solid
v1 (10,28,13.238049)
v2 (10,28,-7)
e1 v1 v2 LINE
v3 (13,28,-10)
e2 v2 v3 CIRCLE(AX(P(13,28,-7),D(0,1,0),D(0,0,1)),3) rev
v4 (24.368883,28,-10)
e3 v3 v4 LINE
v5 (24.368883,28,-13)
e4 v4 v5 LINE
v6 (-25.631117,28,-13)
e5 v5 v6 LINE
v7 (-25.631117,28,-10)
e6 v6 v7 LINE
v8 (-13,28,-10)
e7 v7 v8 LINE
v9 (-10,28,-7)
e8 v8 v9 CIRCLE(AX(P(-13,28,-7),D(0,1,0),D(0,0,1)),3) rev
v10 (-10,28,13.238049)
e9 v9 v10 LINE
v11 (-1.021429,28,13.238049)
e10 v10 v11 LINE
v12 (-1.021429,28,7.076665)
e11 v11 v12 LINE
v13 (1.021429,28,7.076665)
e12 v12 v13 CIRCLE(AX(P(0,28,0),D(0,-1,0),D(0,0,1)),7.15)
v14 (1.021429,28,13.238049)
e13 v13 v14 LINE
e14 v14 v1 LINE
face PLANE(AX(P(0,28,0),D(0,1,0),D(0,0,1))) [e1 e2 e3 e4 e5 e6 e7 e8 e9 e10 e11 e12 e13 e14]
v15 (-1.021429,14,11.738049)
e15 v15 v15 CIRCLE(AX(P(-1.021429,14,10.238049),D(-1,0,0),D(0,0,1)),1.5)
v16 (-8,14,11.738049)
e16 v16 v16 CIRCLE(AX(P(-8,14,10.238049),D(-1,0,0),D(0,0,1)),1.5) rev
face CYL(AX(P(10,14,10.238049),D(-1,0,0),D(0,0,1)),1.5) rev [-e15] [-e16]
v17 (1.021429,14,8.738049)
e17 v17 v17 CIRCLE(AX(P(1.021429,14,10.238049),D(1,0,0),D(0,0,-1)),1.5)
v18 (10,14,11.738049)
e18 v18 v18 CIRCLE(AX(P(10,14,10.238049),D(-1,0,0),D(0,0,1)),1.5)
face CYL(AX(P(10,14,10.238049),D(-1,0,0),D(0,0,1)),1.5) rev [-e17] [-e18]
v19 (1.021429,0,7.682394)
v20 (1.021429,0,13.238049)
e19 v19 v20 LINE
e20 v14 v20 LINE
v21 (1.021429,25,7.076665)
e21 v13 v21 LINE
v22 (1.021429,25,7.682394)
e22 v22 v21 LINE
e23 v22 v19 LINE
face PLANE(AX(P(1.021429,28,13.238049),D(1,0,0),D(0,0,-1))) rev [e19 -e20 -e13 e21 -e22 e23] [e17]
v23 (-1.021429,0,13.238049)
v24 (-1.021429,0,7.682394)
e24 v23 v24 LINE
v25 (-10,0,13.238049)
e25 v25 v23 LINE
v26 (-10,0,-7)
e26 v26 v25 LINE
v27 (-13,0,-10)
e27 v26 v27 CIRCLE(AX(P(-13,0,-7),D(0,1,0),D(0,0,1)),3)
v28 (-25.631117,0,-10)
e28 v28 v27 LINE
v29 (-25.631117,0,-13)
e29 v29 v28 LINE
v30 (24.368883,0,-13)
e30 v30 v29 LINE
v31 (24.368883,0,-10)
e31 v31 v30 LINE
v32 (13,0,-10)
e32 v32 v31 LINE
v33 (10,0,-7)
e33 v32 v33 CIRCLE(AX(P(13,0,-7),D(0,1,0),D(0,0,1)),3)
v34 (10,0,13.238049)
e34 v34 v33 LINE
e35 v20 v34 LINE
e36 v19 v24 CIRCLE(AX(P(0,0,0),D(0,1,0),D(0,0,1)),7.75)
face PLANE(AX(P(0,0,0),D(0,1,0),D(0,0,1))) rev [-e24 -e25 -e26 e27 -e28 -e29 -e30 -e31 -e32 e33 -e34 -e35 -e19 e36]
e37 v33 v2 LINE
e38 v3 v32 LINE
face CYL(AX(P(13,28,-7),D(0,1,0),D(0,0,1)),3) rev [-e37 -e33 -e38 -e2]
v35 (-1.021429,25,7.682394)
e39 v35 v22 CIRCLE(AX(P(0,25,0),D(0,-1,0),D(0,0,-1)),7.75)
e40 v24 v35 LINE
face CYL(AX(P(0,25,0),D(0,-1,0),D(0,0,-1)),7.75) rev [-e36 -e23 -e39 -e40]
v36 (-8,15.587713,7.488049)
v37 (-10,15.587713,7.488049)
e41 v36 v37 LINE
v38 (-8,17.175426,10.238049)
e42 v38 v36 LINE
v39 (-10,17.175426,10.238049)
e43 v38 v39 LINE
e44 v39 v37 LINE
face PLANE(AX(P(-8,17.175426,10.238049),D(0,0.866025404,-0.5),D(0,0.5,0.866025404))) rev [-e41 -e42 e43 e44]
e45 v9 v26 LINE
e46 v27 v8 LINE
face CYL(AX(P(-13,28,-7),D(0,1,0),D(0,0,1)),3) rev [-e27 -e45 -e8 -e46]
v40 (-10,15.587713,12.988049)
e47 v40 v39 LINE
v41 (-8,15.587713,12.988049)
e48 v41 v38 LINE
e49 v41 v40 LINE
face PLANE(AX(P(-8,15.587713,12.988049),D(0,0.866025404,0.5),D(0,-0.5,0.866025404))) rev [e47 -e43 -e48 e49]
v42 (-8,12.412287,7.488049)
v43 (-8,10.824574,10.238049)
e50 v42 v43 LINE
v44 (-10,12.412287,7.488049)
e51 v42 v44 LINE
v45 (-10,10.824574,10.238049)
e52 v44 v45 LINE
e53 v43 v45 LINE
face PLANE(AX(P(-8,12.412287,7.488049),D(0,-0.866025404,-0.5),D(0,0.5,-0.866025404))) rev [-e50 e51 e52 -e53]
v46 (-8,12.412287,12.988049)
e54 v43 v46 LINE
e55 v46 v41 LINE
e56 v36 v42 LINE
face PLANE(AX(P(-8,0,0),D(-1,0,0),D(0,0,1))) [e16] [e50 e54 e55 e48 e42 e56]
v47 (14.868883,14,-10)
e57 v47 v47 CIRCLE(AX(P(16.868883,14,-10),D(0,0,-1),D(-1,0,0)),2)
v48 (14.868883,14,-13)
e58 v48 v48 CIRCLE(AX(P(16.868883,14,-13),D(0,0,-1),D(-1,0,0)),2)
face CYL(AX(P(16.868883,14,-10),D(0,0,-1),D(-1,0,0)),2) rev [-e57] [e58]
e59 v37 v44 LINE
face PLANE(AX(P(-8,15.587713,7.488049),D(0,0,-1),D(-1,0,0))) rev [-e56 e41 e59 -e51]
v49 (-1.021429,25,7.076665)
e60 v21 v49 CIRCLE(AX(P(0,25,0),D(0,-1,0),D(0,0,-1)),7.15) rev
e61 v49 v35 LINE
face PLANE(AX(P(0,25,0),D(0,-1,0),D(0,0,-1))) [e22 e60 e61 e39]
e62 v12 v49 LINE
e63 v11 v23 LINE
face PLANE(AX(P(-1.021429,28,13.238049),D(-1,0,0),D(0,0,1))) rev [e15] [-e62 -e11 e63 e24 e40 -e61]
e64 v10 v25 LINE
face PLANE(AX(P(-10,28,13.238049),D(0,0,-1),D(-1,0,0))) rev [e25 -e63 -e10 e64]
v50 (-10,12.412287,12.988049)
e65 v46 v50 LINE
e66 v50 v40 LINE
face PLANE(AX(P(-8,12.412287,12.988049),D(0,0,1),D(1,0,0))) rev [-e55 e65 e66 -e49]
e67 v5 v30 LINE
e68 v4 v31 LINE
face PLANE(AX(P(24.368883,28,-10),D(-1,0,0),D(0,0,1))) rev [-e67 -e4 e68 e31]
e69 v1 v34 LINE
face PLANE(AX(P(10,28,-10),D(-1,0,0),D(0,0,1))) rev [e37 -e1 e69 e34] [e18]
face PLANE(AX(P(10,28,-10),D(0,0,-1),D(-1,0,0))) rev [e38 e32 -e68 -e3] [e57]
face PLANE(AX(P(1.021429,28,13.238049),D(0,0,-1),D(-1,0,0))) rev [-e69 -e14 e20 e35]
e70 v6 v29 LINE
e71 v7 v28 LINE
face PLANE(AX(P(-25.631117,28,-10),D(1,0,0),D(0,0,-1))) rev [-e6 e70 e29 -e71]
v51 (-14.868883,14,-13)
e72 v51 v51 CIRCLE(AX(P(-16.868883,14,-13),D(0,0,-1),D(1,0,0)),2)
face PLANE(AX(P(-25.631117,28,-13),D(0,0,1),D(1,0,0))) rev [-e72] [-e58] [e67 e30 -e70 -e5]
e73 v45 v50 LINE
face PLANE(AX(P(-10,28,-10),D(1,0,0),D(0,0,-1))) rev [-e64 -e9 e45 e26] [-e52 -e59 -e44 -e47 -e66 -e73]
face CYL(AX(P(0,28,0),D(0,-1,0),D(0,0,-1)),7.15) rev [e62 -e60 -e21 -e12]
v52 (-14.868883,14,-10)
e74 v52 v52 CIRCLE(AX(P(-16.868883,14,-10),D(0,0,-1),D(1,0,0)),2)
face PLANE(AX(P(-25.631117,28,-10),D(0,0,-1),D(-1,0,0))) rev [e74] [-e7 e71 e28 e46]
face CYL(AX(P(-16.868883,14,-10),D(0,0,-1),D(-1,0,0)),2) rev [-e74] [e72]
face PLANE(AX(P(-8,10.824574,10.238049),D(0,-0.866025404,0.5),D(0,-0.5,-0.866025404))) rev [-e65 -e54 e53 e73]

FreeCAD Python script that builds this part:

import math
import FreeCAD as App
import Part
import Sketcher
Q = App.Units.Quantity


def edges_at(feature, points):
    """Names of the edges that pass closest to the given points."""
    edges = feature.Shape.Edges
    near = lambda p: min(range(len(edges)), key=lambda i: edges[i].distToShape(Part.Vertex(*p))[0])
    return sorted({f"Edge{near(p) + 1}" for p in points})

doc = App.newDocument("Part")
body = doc.addObject("PartDesign::Body", "Body")

# Sketch on XZ plane
sketch1 = body.newObject("Sketcher::SketchObject", "Sketch")
sketch1.AttachmentSupport = (doc.getObject("XZ_Plane"), [""])
sketch1.MapMode = "FlatFace"
sketch1.addGeometry(Part.LineSegment(App.Vector(-25.6, -10, 0), App.Vector(-10, -10, 0)), False)
sketch1.addGeometry(Part.LineSegment(App.Vector(-10, -10, 0), App.Vector(-10, 13.2, 0)), False)
sketch1.addGeometry(Part.LineSegment(App.Vector(-10, 13.2, 0), App.Vector(-1, 13.2, 0)), False)
sketch1.addGeometry(Part.LineSegment(App.Vector(-1, 13.2, 0), App.Vector(-1, 7.1, 0)), False)
sketch1.addGeometry(Part.ArcOfCircle(Part.Circle(App.Vector(0, 0, 0), App.Vector(0, 0, 1), 7.2), math.radians(98), math.radians(442)), False)
sketch1.addGeometry(Part.LineSegment(App.Vector(1, 7.1, 0), App.Vector(1, 13.2, 0)), False)
sketch1.addGeometry(Part.LineSegment(App.Vector(1, 13.2, 0), App.Vector(10, 13.2, 0)), False)
sketch1.addGeometry(Part.LineSegment(App.Vector(10, 13.2, 0), App.Vector(10, -10, 0)), False)
sketch1.addGeometry(Part.LineSegment(App.Vector(10, -10, 0), App.Vector(24.4, -10, 0)), False)
sketch1.addGeometry(Part.LineSegment(App.Vector(24.4, -10, 0), App.Vector(24.4, -13, 0)), False)
sketch1.addGeometry(Part.LineSegment(App.Vector(24.4, -13, 0), App.Vector(-25.6, -13, 0)), False)
sketch1.addGeometry(Part.LineSegment(App.Vector(-25.6, -13, 0), App.Vector(-25.6, -10, 0)), False)
sketch1.addConstraint(Sketcher.Constraint("Coincident", 0, 2, 1, 1))
sketch1.addConstraint(Sketcher.Constraint("Coincident", 1, 2, 2, 1))
sketch1.addConstraint(Sketcher.Constraint("Coincident", 2, 2, 3, 1))
sketch1.addConstraint(Sketcher.Constraint("Coincident", 3, 2, 4, 1))
sketch1.addConstraint(Sketcher.Constraint("Coincident", 4, 2, 5, 1))
sketch1.addConstraint(Sketcher.Constraint("Coincident", 5, 2, 6, 1))
sketch1.addConstraint(Sketcher.Constraint("Coincident", 6, 2, 7, 1))
sketch1.addConstraint(Sketcher.Constraint("Coincident", 7, 2, 8, 1))
sketch1.addConstraint(Sketcher.Constraint("Coincident", 8, 2, 9, 1))
sketch1.addConstraint(Sketcher.Constraint("Coincident", 9, 2, 10, 1))
sketch1.addConstraint(Sketcher.Constraint("Coincident", 10, 2, 11, 1))
sketch1.addConstraint(Sketcher.Constraint("Coincident", 11, 2, 0, 1))
sketch1.addConstraint(Sketcher.Constraint("Horizontal", 0))
sketch1.addConstraint(Sketcher.Constraint("Vertical", 1))
sketch1.addConstraint(Sketcher.Constraint("Horizontal", 2))
sketch1.addConstraint(Sketcher.Constraint("Vertical", 3))
sketch1.addConstraint(Sketcher.Constraint("Vertical", 5))
sketch1.addConstraint(Sketcher.Constraint("Horizontal", 6))
sketch1.addConstraint(Sketcher.Constraint("Vertical", 7))
sketch1.addConstraint(Sketcher.Constraint("Horizontal", 8))
sketch1.addConstraint(Sketcher.Constraint("Vertical", 9))
sketch1.addConstraint(Sketcher.Constraint("Horizontal", 10))
sketch1.addConstraint(Sketcher.Constraint("Vertical", 11))
sketch1.addConstraint(Sketcher.Constraint("Coincident", 4, 3, -1, 1))
sketch1.addConstraint(Sketcher.Constraint("Symmetric", 2, 2, 5, 2, -2))
sketch1.addConstraint(Sketcher.Constraint("Symmetric", 0, 2, 7, 2, -2))
sketch1.addConstraint(Sketcher.Constraint("DistanceX", 10, 2, 10, 1, Q("50 mm")))
sketch1.addConstraint(Sketcher.Constraint("DistanceY", 9, 2, 9, 1, Q("3 mm")))
sketch1.addConstraint(Sketcher.Constraint("Radius", 4, Q("7.15 mm")))
sketch1.addConstraint(Sketcher.Constraint("DistanceX", 0, 2, -1, 1, Q("10 mm")))
sketch1.addConstraint(Sketcher.Constraint("DistanceY", 0, 2, -1, 1, Q("10 mm")))
sketch1.addConstraint(Sketcher.Constraint("DistanceX", 2, 1, 2, 2, Q("8.978571 mm")))
sketch1.addConstraint(Sketcher.Constraint("DistanceY", 1, 1, 1, 2, Q("23.238049 mm")))
sketch1.addConstraint(Sketcher.Constraint("DistanceX", 0, 1, 0, 2, Q("15.631117 mm")))
pad1 = body.newObject("PartDesign::Pad", "Pad")
pad1.Profile = sketch1
pad1.Length = 28
pad1.Reversed = True

# Sketch on YZ plane
sketch2 = body.newObject("Sketcher::SketchObject", "Sketch001")
sketch2.AttachmentSupport = (doc.getObject("YZ_Plane"), [""])
sketch2.MapMode = "FlatFace"
sketch2.AttachmentOffset = App.Placement(App.Vector(0, 0, -10), App.Rotation())
sketch2.addGeometry(Part.Circle(App.Vector(14, 10.2, 0), App.Vector(0, 0, 1), 1.5), False)
sketch2.addConstraint(Sketcher.Constraint("Diameter", 0, Q("3 mm")))
sketch2.addConstraint(Sketcher.Constraint("DistanceX", -1, 1, 0, 3, Q("14 mm")))
sketch2.addConstraint(Sketcher.Constraint("DistanceY", -1, 1, 0, 3, Q("10.238049 mm")))
pocket1 = body.newObject("PartDesign::Pocket", "Pocket")
pocket1.Profile = sketch2
pocket1.Length = 20
pocket1.Reversed = True

# Sketch on YZ plane
sketch3 = body.newObject("Sketcher::SketchObject", "Sketch002")
sketch3.AttachmentSupport = (doc.getObject("YZ_Plane"), [""])
sketch3.MapMode = "FlatFace"
sketch3.AttachmentOffset = App.Placement(App.Vector(0, 0, -10), App.Rotation())
sketch3.addGeometry(Part.LineSegment(App.Vector(17.2, 10.2, 0), App.Vector(15.6, 7.5, 0)), False)
sketch3.addGeometry(Part.LineSegment(App.Vector(15.6, 7.5, 0), App.Vector(12.4, 7.5, 0)), False)
sketch3.addGeometry(Part.LineSegment(App.Vector(12.4, 7.5, 0), App.Vector(10.8, 10.2, 0)), False)
sketch3.addGeometry(Part.LineSegment(App.Vector(10.8, 10.2, 0), App.Vector(12.4, 13, 0)), False)
sketch3.addGeometry(Part.LineSegment(App.Vector(12.4, 13, 0), App.Vector(15.6, 13, 0)), False)
sketch3.addGeometry(Part.LineSegment(App.Vector(15.6, 13, 0), App.Vector(17.2, 10.2, 0)), False)
sketch3.addConstraint(Sketcher.Constraint("Coincident", 0, 2, 1, 1))
sketch3.addConstraint(Sketcher.Constraint("Coincident", 1, 2, 2, 1))
sketch3.addConstraint(Sketcher.Constraint("Coincident", 2, 2, 3, 1))
sketch3.addConstraint(Sketcher.Constraint("Coincident", 3, 2, 4, 1))
sketch3.addConstraint(Sketcher.Constraint("Coincident", 4, 2, 5, 1))
sketch3.addConstraint(Sketcher.Constraint("Coincident", 5, 2, 0, 1))
sketch3.addConstraint(Sketcher.Constraint("Horizontal", 1))
sketch3.addConstraint(Sketcher.Constraint("Horizontal", 4))
sketch3.addConstraint(Sketcher.Constraint("Parallel", 0, 3))
sketch3.addConstraint(Sketcher.Constraint("Parallel", 2, 5))
sketch3.addConstraint(Sketcher.Constraint("Horizontal", 2, 2, 5, 2))
sketch3.addConstraint(Sketcher.Constraint("Vertical", 1, 2, 3, 2))
sketch3.addConstraint(Sketcher.Constraint("Vertical", 0, 2, 4, 2))
sketch3.addConstraint(Sketcher.Constraint("Angle", 0, Q("-120 deg")))
sketch3.addConstraint(Sketcher.Constraint("DistanceY", 1, 2, 3, 2, Q("5.5 mm")))
sketch3.addConstraint(Sketcher.Constraint("DistanceX", 1, 2, 1, 1, Q("3.175426 mm")))
sketch3.addConstraint(Sketcher.Constraint("DistanceY", -1, 1, 0, 2, Q("7.488049 mm")))
sketch3.addConstraint(Sketcher.Constraint("DistanceX", -1, 1, 0, 2, Q("15.587713 mm")))
pocket2 = body.newObject("PartDesign::Pocket", "Pocket001")
pocket2.Profile = sketch3
pocket2.Length = 2
pocket2.Reversed = True

# Sketch on XY plane
sketch4 = body.newObject("Sketcher::SketchObject", "Sketch003")
sketch4.AttachmentSupport = (doc.getObject("XY_Plane"), [""])
sketch4.MapMode = "FlatFace"
sketch4.AttachmentOffset = App.Placement(App.Vector(0, 0, -13), App.Rotation())
sketch4.addGeometry(Part.Circle(App.Vector(16.9, 14, 0), App.Vector(0, 0, 1), 2), False)
sketch4.addGeometry(Part.Circle(App.Vector(-16.9, 14, 0), App.Vector(0, 0, 1), 2), False)
sketch4.addConstraint(Sketcher.Constraint("Equal", 0, 1))
sketch4.addConstraint(Sketcher.Constraint("Symmetric", 0, 3, 1, 3, -2))
sketch4.addConstraint(Sketcher.Constraint("Diameter", 0, Q("4 mm")))
sketch4.addConstraint(Sketcher.Constraint("DistanceY", -1, 1, 0, 3, Q("14 mm")))
sketch4.addConstraint(Sketcher.Constraint("DistanceX", -1, 1, 0, 3, Q("16.868883 mm")))
pocket3 = body.newObject("PartDesign::Pocket", "Pocket002")
pocket3.Profile = sketch4
pocket3.Length = 3
pocket3.Reversed = True
doc.recompute()

fillet = body.newObject("PartDesign::Fillet", "Fillet")
fillet.Base = (pocket3, edges_at(pocket3, [(10, 14, -10)]))
fillet.Radius = 3
doc.recompute()

fillet2 = body.newObject("PartDesign::Fillet", "Fillet001")
fillet2.Base = (fillet, edges_at(fillet, [(-10, 14, -10)]))
fillet2.Radius = 3

# Sketch on XZ plane
sketch5 = body.newObject("Sketcher::SketchObject", "Sketch004")
sketch5.AttachmentSupport = (doc.getObject("XZ_Plane"), [""])
sketch5.MapMode = "FlatFace"
sketch5.addGeometry(Part.Circle(App.Vector(0, 0, 0), App.Vector(0, 0, 1), 8), False)
sketch5.addConstraint(Sketcher.Constraint("Coincident", 0, 3, -1, 1))
sketch5.addConstraint(Sketcher.Constraint("Diameter", 0, Q("15.5 mm")))
pocket4 = body.newObject("PartDesign::Pocket", "Pocket003")
pocket4.Profile = sketch5
pocket4.Length = 25

doc.recompute()
